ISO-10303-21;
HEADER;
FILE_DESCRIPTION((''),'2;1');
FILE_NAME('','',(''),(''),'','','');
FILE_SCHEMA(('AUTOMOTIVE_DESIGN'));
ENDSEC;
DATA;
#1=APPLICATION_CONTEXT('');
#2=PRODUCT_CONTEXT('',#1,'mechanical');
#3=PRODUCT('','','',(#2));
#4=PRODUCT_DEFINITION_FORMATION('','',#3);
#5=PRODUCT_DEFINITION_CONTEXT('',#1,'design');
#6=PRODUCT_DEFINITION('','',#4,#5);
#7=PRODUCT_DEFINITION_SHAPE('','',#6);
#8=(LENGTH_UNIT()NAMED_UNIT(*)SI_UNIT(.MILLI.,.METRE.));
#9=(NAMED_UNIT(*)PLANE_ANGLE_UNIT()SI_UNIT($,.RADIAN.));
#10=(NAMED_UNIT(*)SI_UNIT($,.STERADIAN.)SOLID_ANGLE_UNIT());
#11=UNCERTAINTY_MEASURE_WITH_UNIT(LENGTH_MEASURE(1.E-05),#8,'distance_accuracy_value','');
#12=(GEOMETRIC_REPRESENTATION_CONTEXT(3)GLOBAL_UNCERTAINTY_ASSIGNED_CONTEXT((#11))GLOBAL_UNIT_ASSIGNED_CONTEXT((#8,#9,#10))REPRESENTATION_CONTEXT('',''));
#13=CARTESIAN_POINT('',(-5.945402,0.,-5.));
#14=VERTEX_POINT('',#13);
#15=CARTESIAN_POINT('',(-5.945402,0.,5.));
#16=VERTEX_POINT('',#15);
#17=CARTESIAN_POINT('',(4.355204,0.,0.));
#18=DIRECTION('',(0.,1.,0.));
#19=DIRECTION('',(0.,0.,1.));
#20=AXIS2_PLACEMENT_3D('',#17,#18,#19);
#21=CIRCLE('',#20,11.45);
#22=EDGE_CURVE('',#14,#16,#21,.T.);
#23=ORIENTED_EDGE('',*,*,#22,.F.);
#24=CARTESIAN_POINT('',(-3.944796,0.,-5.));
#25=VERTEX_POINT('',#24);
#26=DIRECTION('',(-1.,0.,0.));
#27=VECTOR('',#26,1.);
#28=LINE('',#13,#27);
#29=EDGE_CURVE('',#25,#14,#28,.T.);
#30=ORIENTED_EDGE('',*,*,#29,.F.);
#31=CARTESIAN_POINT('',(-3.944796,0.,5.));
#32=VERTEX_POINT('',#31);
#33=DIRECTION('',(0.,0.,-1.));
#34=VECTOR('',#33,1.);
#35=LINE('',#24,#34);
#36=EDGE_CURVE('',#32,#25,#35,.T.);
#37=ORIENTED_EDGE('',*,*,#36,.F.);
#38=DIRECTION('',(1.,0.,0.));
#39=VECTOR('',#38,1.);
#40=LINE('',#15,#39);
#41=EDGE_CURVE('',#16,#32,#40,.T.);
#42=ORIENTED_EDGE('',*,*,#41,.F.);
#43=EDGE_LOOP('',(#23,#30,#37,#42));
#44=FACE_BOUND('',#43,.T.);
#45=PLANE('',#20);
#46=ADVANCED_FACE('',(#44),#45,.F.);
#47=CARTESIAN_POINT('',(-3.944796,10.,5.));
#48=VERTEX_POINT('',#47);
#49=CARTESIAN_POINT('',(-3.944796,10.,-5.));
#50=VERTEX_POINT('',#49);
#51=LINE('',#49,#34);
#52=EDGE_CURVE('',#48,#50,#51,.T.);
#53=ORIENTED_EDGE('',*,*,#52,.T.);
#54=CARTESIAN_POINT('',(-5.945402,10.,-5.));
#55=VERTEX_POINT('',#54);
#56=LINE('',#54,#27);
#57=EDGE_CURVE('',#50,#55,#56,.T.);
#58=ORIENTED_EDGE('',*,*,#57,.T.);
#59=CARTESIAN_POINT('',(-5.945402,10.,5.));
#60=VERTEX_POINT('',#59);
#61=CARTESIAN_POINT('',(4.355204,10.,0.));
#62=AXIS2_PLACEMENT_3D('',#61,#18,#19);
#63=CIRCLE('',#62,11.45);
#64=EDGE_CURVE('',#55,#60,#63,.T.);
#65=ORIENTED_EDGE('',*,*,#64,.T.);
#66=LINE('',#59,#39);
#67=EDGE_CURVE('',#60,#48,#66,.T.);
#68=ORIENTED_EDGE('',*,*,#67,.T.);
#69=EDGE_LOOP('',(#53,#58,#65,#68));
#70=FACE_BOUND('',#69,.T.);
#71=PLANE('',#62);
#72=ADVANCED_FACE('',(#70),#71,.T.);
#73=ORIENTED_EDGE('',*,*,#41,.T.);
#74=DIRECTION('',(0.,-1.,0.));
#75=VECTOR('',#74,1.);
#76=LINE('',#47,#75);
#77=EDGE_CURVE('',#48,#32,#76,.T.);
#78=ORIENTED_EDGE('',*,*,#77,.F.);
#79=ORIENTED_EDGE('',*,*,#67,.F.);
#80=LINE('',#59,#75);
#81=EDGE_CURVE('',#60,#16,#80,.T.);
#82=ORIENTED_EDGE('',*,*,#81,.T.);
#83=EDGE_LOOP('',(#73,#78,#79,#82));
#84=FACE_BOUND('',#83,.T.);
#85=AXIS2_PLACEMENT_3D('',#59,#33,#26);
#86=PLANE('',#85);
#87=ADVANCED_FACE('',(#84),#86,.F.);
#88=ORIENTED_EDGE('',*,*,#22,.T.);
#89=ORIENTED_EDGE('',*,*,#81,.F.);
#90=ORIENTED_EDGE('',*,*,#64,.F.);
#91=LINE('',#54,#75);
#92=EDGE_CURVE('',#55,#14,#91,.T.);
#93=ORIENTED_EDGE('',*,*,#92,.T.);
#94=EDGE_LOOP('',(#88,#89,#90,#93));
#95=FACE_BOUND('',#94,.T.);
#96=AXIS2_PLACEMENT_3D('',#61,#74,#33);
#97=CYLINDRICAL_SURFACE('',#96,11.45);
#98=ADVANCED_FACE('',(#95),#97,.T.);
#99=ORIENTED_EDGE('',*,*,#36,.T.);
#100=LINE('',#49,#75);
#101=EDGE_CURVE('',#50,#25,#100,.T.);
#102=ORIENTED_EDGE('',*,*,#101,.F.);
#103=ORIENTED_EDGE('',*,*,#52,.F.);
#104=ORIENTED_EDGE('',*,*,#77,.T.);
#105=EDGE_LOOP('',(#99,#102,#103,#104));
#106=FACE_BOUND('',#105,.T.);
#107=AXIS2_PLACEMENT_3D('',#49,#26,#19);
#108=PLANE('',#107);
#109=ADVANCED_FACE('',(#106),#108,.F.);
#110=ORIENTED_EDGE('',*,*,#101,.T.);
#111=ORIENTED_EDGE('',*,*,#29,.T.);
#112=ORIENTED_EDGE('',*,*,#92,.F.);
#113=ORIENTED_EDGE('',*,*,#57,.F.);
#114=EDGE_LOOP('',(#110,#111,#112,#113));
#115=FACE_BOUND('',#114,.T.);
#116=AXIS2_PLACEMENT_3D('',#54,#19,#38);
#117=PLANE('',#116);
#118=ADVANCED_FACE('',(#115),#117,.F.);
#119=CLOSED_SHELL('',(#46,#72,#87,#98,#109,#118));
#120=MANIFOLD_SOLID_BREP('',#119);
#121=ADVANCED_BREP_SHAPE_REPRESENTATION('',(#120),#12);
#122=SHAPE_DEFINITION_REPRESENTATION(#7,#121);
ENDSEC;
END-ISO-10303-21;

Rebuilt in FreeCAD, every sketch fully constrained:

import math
import FreeCAD as App
import Part
import Sketcher
from FreeCAD import Vector
Q = App.Units.Quantity

doc = App.newDocument("Part")
body = doc.addObject("PartDesign::Body", "Body")

# Sketch on XZ plane
sketch1 = body.newObject("Sketcher::SketchObject", "Sketch")
sketch1.AttachmentSupport = (doc.getObject("XZ_Plane"), [""])
sketch1.MapMode = "FlatFace"
sketch1.addGeometry(Part.LineSegment(Vector(-3.944796, -5, 0), Vector(-5.945402, -5, 0)), False)
sketch1.addGeometry(Part.ArcOfCircle(Part.Circle(Vector(4.355204, 0, 0), Vector(0, 0, 1), 11.45), math.radians(154.107679), math.radians(205.892321)), False)
sketch1.addGeometry(Part.LineSegment(Vector(-5.945402, 5, 0), Vector(-3.944796, 5, 0)), False)
sketch1.addGeometry(Part.LineSegment(Vector(-3.944796, 5, 0), Vector(-3.944796, -5, 0)), False)
sketch1.addConstraint(Sketcher.Constraint("Coincident", 0, 2, 1, 2))
sketch1.addConstraint(Sketcher.Constraint("Coincident", 1, 1, 2, 1))
sketch1.addConstraint(Sketcher.Constraint("Coincident", 2, 2, 3, 1))
sketch1.addConstraint(Sketcher.Constraint("Coincident", 3, 2, 0, 1))
sketch1.addConstraint(Sketcher.Constraint("Horizontal", 0))
sketch1.addConstraint(Sketcher.Constraint("Horizontal", 2))
sketch1.addConstraint(Sketcher.Constraint("Vertical", 3))
sketch1.addConstraint(Sketcher.Constraint("Symmetric", 0, 2, 1, 1, -1))
sketch1.addConstraint(Sketcher.Constraint("DistanceY", 3, 2, 3, 1, Q("10 mm")))
sketch1.addConstraint(Sketcher.Constraint("Radius", 1, Q("11.45 mm")))
sketch1.addConstraint(Sketcher.Constraint("DistanceX", 2, 2, 1, 3, Q("8.3 mm")))
sketch1.addConstraint(Sketcher.Constraint("DistanceX", -1, 1, 1, 3, Q("4.355204 mm")))
pad1 = body.newObject("PartDesign::Pad", "Pad")
pad1.Profile = sketch1
pad1.Length = 10
pad1.Reversed = True

doc.recompute()
